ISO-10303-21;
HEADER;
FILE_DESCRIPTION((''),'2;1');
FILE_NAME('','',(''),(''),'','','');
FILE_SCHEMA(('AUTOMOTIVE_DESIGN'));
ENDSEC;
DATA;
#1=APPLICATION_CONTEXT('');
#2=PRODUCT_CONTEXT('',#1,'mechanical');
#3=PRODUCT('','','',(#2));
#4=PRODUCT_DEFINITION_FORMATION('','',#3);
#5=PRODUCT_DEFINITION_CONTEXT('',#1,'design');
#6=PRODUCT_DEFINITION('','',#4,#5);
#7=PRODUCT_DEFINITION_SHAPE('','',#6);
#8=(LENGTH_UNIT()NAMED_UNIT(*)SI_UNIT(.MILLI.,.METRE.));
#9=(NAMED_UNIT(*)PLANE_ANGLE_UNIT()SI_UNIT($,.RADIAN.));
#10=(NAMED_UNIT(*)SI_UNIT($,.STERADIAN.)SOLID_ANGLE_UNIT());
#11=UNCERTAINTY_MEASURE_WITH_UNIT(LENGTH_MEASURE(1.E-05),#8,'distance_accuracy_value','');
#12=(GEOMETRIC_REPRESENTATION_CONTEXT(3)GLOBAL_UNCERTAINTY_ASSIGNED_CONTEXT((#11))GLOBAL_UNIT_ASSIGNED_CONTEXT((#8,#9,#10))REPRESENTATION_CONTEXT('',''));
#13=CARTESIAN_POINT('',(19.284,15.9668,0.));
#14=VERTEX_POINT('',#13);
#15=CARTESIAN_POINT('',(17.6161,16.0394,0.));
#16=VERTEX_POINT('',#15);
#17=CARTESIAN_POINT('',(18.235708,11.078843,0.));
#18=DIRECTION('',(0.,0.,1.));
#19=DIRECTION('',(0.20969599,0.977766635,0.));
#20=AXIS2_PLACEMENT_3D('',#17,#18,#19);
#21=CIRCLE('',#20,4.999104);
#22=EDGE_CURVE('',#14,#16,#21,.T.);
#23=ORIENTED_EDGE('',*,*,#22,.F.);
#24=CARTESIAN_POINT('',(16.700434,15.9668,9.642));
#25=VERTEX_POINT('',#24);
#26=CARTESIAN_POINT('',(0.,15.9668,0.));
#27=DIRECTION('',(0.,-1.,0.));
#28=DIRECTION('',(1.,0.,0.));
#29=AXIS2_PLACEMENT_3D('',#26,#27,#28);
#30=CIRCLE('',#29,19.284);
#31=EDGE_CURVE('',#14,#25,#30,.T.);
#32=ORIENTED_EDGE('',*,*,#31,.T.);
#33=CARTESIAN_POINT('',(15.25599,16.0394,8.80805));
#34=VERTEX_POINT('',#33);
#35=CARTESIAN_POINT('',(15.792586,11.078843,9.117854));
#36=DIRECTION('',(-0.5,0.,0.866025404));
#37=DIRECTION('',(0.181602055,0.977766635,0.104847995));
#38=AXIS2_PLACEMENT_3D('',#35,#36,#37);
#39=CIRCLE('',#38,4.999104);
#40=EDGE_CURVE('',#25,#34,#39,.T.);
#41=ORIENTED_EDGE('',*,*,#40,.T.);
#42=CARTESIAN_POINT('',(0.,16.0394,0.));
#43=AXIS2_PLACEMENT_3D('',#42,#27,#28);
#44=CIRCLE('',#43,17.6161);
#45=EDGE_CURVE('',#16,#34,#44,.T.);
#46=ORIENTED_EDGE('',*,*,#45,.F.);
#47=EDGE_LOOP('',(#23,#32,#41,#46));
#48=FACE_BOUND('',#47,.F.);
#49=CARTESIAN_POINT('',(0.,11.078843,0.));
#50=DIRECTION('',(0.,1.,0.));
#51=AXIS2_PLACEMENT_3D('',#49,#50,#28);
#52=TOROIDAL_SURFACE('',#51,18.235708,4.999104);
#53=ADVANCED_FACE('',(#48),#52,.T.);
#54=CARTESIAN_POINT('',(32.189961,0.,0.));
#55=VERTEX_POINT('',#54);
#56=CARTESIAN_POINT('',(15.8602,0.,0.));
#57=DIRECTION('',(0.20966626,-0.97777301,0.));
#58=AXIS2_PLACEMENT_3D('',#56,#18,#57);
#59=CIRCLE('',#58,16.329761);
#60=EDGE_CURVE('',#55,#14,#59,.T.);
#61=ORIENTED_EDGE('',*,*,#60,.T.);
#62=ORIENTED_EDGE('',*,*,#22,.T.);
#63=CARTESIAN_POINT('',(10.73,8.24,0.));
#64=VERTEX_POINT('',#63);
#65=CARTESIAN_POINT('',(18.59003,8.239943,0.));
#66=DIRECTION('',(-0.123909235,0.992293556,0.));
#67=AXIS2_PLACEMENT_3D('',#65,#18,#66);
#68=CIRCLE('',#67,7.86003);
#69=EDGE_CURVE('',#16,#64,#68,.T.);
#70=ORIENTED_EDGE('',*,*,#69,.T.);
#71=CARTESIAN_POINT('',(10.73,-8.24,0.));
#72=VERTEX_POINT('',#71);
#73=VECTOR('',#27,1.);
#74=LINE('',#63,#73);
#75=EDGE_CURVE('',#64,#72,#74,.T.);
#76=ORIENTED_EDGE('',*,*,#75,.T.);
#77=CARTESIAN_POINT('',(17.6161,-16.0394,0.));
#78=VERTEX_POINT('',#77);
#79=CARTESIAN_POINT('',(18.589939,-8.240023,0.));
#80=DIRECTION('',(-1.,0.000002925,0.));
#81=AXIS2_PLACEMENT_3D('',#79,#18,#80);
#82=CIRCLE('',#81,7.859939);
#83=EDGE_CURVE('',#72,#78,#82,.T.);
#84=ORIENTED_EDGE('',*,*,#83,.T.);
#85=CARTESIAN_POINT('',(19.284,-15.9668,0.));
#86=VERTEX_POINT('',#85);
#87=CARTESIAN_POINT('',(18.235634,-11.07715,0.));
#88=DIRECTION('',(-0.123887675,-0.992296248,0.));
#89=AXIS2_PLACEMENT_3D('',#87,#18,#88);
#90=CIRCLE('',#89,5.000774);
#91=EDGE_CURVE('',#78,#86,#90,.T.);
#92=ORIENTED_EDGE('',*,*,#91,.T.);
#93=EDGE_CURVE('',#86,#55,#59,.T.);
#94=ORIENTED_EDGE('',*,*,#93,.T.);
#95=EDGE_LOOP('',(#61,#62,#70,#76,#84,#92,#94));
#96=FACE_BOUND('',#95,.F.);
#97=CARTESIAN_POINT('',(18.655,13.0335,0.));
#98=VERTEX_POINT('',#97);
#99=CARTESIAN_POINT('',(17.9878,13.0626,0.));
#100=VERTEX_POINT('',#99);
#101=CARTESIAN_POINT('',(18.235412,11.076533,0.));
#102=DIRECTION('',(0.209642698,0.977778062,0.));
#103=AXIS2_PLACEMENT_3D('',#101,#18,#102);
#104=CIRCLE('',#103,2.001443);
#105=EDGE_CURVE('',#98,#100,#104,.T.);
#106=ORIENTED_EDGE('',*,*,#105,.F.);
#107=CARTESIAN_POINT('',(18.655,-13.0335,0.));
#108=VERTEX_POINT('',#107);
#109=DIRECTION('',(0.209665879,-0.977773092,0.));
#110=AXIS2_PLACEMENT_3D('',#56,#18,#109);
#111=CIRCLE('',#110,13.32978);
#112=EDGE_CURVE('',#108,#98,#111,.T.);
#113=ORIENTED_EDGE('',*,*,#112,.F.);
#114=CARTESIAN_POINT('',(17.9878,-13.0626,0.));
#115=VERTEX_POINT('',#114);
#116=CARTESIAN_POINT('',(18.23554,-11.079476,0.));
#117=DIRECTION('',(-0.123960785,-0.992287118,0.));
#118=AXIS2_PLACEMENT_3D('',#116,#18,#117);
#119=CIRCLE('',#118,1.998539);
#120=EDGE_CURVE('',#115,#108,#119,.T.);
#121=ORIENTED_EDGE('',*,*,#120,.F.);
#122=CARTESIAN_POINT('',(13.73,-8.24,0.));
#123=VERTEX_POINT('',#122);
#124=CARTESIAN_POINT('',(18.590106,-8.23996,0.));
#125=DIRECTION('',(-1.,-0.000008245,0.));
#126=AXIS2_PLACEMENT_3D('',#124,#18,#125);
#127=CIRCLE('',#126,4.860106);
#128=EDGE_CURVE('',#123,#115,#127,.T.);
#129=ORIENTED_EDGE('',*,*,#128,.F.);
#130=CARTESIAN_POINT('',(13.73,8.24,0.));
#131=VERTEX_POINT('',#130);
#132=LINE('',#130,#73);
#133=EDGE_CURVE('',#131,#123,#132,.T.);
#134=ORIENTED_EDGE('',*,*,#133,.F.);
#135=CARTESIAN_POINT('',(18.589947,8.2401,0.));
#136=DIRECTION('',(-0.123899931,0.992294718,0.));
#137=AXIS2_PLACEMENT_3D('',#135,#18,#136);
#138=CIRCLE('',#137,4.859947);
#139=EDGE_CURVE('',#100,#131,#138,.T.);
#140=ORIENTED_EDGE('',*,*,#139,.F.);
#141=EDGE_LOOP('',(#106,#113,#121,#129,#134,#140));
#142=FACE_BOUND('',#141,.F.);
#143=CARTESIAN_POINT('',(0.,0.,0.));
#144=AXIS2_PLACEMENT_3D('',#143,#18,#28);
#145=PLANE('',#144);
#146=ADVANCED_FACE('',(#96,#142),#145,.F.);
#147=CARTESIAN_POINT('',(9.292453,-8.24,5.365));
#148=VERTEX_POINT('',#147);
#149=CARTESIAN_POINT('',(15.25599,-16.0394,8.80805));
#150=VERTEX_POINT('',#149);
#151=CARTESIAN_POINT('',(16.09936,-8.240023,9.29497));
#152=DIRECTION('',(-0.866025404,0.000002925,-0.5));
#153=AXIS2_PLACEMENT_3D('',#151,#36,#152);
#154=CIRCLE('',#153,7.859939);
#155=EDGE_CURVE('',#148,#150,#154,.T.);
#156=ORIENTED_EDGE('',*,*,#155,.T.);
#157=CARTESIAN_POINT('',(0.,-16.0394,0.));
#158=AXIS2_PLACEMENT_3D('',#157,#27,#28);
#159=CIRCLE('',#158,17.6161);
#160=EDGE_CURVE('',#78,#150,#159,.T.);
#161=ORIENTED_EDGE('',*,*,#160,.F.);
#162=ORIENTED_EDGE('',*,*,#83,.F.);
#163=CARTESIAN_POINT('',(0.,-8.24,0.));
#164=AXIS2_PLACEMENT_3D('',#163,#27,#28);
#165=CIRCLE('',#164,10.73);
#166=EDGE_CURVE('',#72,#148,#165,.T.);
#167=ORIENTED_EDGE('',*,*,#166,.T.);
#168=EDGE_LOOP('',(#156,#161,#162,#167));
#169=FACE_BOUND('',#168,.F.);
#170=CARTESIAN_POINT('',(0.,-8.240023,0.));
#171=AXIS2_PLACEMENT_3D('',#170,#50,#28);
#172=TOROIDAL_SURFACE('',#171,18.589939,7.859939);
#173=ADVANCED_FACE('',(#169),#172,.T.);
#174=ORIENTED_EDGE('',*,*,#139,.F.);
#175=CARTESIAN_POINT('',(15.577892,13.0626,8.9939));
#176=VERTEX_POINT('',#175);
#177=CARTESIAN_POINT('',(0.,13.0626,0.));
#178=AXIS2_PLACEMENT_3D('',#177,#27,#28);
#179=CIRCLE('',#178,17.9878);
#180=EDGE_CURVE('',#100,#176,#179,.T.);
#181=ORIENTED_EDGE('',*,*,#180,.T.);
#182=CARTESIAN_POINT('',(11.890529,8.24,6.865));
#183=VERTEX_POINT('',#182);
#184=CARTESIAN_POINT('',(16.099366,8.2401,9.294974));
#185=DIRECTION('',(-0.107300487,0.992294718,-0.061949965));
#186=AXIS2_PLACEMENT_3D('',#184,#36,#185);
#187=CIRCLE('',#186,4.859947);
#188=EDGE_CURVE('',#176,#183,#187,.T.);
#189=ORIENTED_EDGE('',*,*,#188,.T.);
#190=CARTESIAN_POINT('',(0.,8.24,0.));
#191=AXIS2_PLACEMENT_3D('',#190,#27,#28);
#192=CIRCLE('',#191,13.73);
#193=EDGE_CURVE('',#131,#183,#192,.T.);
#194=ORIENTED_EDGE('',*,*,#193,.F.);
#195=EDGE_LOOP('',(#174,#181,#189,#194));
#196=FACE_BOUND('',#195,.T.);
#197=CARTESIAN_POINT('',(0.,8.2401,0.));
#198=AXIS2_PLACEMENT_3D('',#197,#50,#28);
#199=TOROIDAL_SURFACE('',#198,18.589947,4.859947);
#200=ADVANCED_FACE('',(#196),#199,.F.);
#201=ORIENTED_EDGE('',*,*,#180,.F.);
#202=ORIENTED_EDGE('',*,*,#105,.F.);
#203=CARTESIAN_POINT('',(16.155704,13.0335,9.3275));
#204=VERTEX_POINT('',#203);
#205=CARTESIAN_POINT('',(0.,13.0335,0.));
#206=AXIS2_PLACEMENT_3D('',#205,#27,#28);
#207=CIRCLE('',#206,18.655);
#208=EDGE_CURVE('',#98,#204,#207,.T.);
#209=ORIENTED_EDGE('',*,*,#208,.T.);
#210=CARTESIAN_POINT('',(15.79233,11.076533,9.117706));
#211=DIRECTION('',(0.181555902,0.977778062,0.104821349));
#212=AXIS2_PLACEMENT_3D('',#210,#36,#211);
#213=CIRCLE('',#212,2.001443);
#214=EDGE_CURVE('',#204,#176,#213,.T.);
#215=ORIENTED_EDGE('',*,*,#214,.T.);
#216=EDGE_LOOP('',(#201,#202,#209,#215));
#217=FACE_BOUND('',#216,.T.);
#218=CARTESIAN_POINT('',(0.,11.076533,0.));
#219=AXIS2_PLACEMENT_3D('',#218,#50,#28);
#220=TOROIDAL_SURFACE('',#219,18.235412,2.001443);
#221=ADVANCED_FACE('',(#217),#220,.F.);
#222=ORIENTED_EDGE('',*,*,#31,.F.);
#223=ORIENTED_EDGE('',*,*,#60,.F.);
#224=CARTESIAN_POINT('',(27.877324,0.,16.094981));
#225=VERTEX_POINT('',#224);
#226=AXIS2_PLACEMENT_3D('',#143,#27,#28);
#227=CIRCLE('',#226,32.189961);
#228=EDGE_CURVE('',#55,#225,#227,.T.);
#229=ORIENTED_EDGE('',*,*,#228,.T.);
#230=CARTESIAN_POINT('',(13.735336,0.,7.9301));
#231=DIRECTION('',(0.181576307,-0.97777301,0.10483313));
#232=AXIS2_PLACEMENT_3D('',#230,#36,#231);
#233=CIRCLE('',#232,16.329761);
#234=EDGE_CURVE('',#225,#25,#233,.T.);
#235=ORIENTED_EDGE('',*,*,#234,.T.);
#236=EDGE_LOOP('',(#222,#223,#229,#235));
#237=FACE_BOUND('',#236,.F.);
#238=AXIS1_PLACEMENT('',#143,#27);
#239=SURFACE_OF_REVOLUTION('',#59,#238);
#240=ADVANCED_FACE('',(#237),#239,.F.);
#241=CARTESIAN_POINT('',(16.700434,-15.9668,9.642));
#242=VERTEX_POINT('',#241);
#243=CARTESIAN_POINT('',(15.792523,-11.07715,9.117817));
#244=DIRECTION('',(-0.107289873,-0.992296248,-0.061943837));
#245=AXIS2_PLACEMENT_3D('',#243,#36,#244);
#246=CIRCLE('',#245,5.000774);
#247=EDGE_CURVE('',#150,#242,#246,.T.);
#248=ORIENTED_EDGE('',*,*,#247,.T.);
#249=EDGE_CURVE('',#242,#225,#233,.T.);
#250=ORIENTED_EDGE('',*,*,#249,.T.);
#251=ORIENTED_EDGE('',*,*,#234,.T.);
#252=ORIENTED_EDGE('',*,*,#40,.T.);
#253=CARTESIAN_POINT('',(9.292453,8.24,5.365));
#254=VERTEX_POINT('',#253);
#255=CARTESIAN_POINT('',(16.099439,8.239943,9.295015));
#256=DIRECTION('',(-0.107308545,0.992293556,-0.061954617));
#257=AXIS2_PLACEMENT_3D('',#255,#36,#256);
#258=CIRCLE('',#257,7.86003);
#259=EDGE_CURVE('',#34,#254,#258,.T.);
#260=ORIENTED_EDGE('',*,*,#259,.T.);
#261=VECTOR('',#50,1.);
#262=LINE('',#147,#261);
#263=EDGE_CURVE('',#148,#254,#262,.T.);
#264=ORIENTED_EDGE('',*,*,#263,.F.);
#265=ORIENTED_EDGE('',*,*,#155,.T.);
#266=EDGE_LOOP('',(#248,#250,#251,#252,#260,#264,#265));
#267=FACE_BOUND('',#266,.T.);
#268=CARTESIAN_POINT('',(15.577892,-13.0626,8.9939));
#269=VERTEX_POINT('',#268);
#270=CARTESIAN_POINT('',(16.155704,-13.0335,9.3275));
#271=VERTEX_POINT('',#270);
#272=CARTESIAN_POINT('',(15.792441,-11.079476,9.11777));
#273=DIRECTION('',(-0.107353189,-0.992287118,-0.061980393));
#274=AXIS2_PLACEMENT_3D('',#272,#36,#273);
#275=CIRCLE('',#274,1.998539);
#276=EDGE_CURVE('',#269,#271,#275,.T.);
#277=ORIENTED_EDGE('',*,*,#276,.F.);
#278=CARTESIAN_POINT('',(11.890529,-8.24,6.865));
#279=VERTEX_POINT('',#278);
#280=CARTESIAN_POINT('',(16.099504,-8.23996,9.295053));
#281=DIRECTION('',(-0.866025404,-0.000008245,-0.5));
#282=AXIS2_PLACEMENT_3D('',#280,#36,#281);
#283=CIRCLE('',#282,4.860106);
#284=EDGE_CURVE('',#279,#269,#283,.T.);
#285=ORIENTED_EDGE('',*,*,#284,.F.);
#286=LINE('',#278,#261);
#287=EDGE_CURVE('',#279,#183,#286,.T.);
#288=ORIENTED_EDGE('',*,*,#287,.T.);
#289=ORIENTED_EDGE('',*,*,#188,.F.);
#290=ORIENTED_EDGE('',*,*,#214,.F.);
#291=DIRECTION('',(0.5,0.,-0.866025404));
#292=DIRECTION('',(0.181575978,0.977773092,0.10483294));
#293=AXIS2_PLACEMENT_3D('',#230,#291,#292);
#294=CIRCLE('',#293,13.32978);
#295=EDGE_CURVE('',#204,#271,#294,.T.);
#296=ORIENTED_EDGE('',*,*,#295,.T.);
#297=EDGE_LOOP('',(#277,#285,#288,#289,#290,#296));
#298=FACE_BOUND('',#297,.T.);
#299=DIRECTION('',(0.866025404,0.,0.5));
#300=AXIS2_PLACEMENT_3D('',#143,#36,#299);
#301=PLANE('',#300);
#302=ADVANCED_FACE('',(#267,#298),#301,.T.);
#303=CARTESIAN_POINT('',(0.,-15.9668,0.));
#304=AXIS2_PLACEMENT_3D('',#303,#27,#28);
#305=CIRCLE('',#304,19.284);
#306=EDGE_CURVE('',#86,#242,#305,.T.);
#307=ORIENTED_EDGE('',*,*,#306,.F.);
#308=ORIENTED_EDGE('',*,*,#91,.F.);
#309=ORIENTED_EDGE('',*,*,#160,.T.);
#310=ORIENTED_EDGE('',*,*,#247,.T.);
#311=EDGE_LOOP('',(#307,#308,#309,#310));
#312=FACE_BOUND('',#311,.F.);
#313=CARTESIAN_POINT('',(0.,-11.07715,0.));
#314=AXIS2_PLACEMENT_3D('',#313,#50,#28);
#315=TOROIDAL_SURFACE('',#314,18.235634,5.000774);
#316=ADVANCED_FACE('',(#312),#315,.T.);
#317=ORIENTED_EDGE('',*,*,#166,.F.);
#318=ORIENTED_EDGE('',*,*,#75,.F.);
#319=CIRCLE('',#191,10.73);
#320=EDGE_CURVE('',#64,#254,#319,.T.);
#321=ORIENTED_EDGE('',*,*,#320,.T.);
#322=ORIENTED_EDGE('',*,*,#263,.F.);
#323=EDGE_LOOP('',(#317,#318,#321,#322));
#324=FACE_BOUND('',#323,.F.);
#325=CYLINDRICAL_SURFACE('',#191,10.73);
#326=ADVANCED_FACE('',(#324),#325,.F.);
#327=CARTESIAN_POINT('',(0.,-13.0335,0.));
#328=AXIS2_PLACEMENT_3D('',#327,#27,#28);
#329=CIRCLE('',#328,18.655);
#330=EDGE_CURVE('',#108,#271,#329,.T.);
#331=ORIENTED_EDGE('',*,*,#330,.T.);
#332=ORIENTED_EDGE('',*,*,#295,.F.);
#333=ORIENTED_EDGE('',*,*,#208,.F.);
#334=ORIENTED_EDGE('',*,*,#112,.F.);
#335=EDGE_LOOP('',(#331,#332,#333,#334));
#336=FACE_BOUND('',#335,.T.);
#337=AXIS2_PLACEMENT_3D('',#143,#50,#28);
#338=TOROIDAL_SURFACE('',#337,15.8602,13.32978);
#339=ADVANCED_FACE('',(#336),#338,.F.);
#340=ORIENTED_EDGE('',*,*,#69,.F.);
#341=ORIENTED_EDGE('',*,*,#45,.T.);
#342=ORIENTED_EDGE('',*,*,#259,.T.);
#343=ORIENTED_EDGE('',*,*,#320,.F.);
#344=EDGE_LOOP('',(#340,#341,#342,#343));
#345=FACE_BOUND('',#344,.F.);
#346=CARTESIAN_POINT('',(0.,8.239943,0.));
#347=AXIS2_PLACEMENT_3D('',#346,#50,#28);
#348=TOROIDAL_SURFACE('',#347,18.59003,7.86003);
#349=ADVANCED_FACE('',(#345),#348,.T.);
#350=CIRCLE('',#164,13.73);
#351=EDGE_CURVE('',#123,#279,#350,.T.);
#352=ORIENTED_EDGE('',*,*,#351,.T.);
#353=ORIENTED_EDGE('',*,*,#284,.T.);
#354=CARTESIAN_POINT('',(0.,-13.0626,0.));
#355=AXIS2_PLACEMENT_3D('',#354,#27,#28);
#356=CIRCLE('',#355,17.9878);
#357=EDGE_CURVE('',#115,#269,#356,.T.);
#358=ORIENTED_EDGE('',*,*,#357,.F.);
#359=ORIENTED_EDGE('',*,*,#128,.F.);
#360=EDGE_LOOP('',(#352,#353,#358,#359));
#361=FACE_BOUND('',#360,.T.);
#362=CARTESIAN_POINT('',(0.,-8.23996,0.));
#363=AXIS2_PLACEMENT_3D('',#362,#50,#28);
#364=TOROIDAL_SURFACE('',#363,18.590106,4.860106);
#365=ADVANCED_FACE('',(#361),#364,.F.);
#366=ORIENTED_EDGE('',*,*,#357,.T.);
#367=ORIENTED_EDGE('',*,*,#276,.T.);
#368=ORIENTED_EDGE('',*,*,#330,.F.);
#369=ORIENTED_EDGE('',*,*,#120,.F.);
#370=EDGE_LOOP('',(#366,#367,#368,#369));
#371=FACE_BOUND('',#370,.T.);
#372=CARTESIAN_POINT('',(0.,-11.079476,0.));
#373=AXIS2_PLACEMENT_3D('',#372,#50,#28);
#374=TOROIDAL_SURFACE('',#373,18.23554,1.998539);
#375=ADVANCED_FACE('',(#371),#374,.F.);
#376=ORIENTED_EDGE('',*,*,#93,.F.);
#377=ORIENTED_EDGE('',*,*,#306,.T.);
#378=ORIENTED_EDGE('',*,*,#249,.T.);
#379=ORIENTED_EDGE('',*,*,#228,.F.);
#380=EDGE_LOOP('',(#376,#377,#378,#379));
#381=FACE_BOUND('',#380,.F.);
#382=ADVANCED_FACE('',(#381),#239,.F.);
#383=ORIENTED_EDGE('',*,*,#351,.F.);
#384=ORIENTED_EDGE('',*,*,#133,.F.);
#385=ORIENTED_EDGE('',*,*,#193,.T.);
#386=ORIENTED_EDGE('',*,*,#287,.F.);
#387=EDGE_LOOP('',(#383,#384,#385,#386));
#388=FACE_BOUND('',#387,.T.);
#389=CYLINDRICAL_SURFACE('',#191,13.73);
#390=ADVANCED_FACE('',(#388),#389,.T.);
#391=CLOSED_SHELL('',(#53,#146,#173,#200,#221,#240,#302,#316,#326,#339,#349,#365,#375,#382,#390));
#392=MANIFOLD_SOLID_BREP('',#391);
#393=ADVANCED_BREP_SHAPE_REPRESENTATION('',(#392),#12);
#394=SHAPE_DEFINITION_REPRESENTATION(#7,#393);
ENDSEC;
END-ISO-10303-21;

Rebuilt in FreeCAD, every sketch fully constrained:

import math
import FreeCAD as App
import Part
import Sketcher
from FreeCAD import Vector
Q = App.Units.Quantity

doc = App.newDocument("Part")
body = doc.addObject("PartDesign::Body", "Body")

sketch1 = body.newObject("Sketcher::SketchObject", "Sketch")
sketch1.AttachmentSupport = (doc.getObject("XY_Plane"), [""])
sketch1.MapMode = "FlatFace"
sketch1.addGeometry([
    Part.ArcOfCircle(Part.Circle(Vector(18.59, 8.24, 0), Vector(0, 0, 1), 7.85997), math.radians(97.117602), math.radians(180)),
    Part.LineSegment(Vector(10.73, 8.24, 0), Vector(10.73, -8.24, 0)),
    Part.ArcOfCircle(Part.Circle(Vector(18.59, -8.24, 0), Vector(0, 0, 1), 7.86), math.radians(180), math.radians(262.882398)),
    Part.ArcOfCircle(Part.Circle(Vector(18.2356, -11.078, 0), Vector(0, 0, 1), 4.999927), math.radians(-97.117341), math.radians(-77.896279)),
    Part.ArcOfCircle(Part.Circle(Vector(15.8602, 0, 0), Vector(0, 0, 1), 16.329761), math.radians(-77.897205), math.radians(77.897205)),
    Part.ArcOfCircle(Part.Circle(Vector(18.2356, 11.078, 0), Vector(0, 0, 1), 4.999951), math.radians(77.896279), math.radians(97.117341)),
    Part.ArcOfCircle(Part.Circle(Vector(15.8602, 0, 0), Vector(0, 0, 1), 13.32978), math.radians(-77.897227), math.radians(77.897227)),
    Part.ArcOfCircle(Part.Circle(Vector(18.23554, -11.079476, 0), Vector(0, 0, 1), 1.998539), math.radians(-97.120746), math.radians(-77.884496)),
    Part.ArcOfCircle(Part.Circle(Vector(18.59, -8.24, 0), Vector(0, 0, 1), 4.86), math.radians(180), math.radians(262.882295)),
    Part.LineSegment(Vector(13.73, -8.24, 0), Vector(13.73, 8.24, 0)),
    Part.ArcOfCircle(Part.Circle(Vector(18.59, 8.24, 0), Vector(0, 0, 1), 4.860053), math.radians(97.117705), math.radians(180)),
    Part.ArcOfCircle(Part.Circle(Vector(18.235412, 11.076533, 0), Vector(0, 0, 1), 2.001443), math.radians(77.898586), math.radians(97.106657)),
], False)
sketch1.addConstraint([
    Sketcher.Constraint("Coincident", 0, 2, 1, 1),
    Sketcher.Constraint("Coincident", 1, 2, 2, 1),
    Sketcher.Constraint("Coincident", 2, 2, 3, 1),
    Sketcher.Constraint("Coincident", 3, 2, 4, 1),
    Sketcher.Constraint("Coincident", 4, 2, 5, 1),
    Sketcher.Constraint("Coincident", 5, 2, 0, 1),
    Sketcher.Constraint("Coincident", 6, 1, 7, 2),
    Sketcher.Constraint("Coincident", 7, 1, 8, 2),
    Sketcher.Constraint("Coincident", 8, 1, 9, 1),
    Sketcher.Constraint("Coincident", 9, 2, 10, 2),
    Sketcher.Constraint("Coincident", 10, 1, 11, 2),
    Sketcher.Constraint("Coincident", 11, 1, 6, 2),
    Sketcher.Constraint("Vertical", 1),
    Sketcher.Constraint("Vertical", 9),
    Sketcher.Constraint("Coincident", 6, 3, 4, 3),
    Sketcher.Constraint("Coincident", 8, 3, 2, 3),
    Sketcher.Constraint("Coincident", 10, 3, 0, 3),
    Sketcher.Constraint("PointOnObject", 4, 3, -1),
    Sketcher.Constraint("Radius", 3, Q("5 mm")),
    Sketcher.Constraint("Radius", 5, Q("5 mm")),
    Sketcher.Constraint("DistanceX", 1, 2, 8, 1, Q("3 mm")),
    Sketcher.Constraint("DistanceY", 1, 2, 1, 1, Q("16.48 mm")),
    Sketcher.Constraint("DistanceY", 9, 1, 9, 2, Q("16.48 mm")),
    Sketcher.Constraint("DistanceX", -1, 1, 0, 3, Q("18.59 mm")),
    Sketcher.Constraint("DistanceX", -1, 1, 2, 3, Q("18.59 mm")),
    Sketcher.Constraint("Radius", 0, Q("7.86 mm")),
    Sketcher.Constraint("DistanceY", 2, 3, 0, 3, Q("16.48 mm")),
    Sketcher.Constraint("Radius", 4, Q("16.3298 mm")),
    Sketcher.Constraint("Radius", 6, Q("13.3298 mm")),
    Sketcher.Constraint("Radius", 7, Q("1.9985 mm")),
    Sketcher.Constraint("Radius", 11, Q("2.0014 mm")),
    Sketcher.Constraint("DistanceY", -1, 1, 0, 3, Q("8.24 mm")),
    Sketcher.Constraint("DistanceY", -1, 1, 0, 2, Q("8.24 mm")),
    Sketcher.Constraint("DistanceY", 8, 1, -1, 1, Q("8.24 mm")),
    Sketcher.Constraint("DistanceY", 2, 2, 7, 3, Q("4.96 mm")),
    Sketcher.Constraint("DistanceY", 3, 3, -1, 1, Q("11.078 mm")),
    Sketcher.Constraint("DistanceX", -1, 1, 3, 2, Q("19.284 mm")),
    Sketcher.Constraint("DistanceX", -1, 1, 4, 2, Q("19.284 mm")),
    Sketcher.Constraint("DistanceX", -1, 1, 5, 2, Q("17.616 mm")),
    Sketcher.Constraint("DistanceX", -1, 1, 6, 1, Q("18.655 mm")),
    Sketcher.Constraint("DistanceX", -1, 1, 11, 1, Q("18.655 mm")),
    Sketcher.Constraint("DistanceY", 7, 1, 6, 1, Q("0.029 mm")),
    Sketcher.Constraint("DistanceY", 11, 3, 10, 1, Q("1.986 mm")),
])
revolution = body.newObject("PartDesign::Revolution", "Revolution")
revolution.Profile = sketch1
revolution.ReferenceAxis = (sketch1, ["V_Axis"])
revolution.Angle = 30
revolution.Reversed = True

doc.recompute()
